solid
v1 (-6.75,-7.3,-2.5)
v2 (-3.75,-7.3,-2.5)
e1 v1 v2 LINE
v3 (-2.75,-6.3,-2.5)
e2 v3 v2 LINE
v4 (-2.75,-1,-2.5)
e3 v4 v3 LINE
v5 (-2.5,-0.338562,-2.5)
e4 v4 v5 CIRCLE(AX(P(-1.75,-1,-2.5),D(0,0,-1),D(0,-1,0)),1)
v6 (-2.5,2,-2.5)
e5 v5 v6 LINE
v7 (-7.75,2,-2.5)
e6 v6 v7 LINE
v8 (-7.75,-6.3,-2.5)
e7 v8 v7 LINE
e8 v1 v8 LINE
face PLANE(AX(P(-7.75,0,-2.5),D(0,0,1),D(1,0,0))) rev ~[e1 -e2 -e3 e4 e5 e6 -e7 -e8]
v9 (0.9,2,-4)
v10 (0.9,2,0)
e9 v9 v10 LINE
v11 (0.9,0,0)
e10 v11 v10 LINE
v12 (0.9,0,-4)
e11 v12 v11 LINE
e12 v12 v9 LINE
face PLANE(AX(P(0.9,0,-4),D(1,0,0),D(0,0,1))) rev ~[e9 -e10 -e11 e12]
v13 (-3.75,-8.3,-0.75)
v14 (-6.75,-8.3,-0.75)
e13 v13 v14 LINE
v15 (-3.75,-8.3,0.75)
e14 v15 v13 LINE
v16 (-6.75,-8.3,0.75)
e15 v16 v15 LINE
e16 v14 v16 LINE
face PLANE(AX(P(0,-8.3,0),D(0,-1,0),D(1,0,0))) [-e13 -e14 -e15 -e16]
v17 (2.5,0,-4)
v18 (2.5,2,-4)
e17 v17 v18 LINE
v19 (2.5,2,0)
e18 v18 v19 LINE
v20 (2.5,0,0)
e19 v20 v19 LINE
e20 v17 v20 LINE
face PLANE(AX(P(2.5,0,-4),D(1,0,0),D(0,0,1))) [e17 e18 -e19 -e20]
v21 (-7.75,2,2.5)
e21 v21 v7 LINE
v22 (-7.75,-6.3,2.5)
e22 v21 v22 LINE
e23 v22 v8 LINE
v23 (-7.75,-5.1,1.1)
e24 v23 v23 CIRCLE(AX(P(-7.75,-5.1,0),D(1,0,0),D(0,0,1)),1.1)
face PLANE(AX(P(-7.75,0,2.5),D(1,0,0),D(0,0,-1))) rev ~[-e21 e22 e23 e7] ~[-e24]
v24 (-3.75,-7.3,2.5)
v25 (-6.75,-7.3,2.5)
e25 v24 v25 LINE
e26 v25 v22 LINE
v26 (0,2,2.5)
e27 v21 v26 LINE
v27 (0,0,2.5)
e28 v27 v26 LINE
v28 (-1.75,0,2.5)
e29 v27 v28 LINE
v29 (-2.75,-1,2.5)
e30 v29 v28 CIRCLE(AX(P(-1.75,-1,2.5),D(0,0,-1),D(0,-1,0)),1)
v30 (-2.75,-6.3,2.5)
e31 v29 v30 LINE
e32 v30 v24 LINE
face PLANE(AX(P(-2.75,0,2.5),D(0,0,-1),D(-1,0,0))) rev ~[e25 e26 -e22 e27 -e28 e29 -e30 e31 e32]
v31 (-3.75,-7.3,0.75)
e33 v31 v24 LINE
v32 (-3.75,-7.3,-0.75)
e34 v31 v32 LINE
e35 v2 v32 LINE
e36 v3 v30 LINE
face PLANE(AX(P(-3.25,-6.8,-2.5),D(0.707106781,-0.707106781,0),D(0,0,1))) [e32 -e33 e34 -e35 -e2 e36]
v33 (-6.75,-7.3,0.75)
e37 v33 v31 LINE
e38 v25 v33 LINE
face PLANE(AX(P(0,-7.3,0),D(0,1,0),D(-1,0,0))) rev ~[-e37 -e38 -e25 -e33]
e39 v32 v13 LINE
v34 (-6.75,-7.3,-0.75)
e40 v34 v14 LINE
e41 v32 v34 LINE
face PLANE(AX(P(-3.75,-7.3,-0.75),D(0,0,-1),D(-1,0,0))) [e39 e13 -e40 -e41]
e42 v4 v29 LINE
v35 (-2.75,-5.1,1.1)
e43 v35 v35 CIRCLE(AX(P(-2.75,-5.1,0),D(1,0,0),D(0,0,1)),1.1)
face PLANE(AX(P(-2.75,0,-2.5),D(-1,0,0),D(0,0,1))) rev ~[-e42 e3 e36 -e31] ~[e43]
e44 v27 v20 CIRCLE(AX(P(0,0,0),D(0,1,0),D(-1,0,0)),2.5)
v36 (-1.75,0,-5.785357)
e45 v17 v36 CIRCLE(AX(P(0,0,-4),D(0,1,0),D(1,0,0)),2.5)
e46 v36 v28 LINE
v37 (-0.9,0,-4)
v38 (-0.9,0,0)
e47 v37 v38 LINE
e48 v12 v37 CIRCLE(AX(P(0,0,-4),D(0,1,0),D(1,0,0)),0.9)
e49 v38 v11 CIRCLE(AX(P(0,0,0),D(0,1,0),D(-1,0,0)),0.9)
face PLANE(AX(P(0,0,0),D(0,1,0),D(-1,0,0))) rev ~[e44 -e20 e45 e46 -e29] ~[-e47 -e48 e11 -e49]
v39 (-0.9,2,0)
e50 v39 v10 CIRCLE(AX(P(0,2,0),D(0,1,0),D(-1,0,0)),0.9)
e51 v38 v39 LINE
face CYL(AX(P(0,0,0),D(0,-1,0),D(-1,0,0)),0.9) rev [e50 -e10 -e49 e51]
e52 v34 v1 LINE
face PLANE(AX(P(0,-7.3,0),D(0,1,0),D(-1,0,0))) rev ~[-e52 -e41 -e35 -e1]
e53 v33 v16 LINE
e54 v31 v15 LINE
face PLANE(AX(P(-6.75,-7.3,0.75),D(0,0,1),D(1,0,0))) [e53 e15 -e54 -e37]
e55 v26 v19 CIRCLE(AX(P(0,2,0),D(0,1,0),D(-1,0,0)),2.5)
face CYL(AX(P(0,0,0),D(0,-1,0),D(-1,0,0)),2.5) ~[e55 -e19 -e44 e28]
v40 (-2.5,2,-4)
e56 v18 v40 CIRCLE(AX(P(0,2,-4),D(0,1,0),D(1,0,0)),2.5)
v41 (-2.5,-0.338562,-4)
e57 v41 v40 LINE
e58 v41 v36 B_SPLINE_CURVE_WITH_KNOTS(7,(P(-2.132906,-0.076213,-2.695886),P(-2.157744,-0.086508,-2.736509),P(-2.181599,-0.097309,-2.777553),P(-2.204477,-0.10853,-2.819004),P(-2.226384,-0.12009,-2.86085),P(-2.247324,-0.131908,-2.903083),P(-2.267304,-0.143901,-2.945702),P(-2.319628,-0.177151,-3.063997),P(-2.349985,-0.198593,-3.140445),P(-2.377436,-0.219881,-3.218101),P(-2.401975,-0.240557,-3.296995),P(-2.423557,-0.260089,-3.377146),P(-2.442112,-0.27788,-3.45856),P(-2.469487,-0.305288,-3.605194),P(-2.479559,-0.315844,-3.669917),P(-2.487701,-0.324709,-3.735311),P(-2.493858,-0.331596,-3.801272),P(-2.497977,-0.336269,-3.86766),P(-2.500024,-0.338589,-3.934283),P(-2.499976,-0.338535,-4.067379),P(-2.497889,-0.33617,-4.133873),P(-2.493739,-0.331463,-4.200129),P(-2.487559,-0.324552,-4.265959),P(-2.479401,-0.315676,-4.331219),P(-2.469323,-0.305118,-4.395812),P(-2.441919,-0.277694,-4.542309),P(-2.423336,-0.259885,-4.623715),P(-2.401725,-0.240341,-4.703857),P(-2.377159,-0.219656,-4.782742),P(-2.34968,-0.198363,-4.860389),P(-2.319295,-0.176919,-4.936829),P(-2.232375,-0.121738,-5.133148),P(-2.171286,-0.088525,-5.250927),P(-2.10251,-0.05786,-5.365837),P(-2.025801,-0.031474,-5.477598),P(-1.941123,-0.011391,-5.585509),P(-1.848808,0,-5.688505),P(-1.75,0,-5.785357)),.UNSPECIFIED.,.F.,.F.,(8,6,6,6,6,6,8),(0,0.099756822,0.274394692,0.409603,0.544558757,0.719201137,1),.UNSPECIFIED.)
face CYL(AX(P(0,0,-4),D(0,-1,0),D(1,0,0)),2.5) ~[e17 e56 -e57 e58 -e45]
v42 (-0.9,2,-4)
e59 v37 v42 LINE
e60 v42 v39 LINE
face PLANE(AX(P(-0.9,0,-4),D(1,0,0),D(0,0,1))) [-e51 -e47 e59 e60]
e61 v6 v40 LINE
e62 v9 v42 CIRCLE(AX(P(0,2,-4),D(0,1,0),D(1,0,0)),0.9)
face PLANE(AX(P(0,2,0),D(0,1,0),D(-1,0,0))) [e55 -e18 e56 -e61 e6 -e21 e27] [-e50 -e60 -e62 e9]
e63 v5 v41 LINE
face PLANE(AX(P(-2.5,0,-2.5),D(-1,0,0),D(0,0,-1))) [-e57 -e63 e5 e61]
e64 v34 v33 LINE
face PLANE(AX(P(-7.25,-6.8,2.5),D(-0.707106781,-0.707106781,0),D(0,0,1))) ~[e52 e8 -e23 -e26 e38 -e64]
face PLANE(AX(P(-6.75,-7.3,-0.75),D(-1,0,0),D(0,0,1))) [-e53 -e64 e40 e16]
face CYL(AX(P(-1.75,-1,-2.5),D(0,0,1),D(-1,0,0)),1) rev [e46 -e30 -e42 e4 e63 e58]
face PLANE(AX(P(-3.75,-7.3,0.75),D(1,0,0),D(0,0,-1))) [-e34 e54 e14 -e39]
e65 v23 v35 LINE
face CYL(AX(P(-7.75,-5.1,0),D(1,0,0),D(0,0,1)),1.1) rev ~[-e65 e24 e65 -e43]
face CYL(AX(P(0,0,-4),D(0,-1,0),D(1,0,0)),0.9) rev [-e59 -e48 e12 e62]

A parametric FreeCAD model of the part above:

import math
import FreeCAD as App
import Part
import Sketcher


def edges_at(feature, points):
    """Names of the edges that pass closest to the given points."""
    edges = feature.Shape.Edges
    near = lambda p: min(range(len(edges)), key=lambda i: edges[i].distToShape(Part.Vertex(*p))[0])
    return sorted({f"Edge{near(p) + 1}" for p in points})


def add_polygon(sketch, points):
    """Adds a closed chain of lines whose ends are joined by coincident constraints."""
    first, n = sketch.GeometryCount, len(points)
    for a, b in zip(points, points[1:] + points[:1]):
        sketch.addGeometry(Part.LineSegment(App.Vector(*a, 0), App.Vector(*b, 0)), False)
    for i in range(n):
        sketch.addConstraint(Sketcher.Constraint("Coincident", first + i, 2, first + (i + 1) % n, 1))

doc = App.newDocument("Part")
body = doc.addObject("PartDesign::Body", "Body")

# Sketch on XZ plane
sketch1 = doc.addObject("Sketcher::SketchObject", "Sketch")
body.addObject(sketch1)
sketch1.AttachmentSupport = (doc.XZ_Plane, [""])
sketch1.MapMode = "FlatFace"
sketch1.addGeometry(Part.LineSegment(App.Vector(2.5, 0, 0), App.Vector(2.5, -4, 0)), False)
sketch1.addGeometry(Part.ArcOfCircle(Part.Circle(App.Vector(0, -4, 0), App.Vector(0, 0, 1), 2.5), math.radians(180), math.radians(360)), False)
sketch1.addGeometry(Part.LineSegment(App.Vector(-2.5, -4, 0), App.Vector(-2.5, -2.5, 0)), False)
sketch1.addGeometry(Part.LineSegment(App.Vector(-2.5, -2.5, 0), App.Vector(-7.75, -2.5, 0)), False)
sketch1.addGeometry(Part.LineSegment(App.Vector(-7.75, -2.5, 0), App.Vector(-7.75, 2.5, 0)), False)
sketch1.addGeometry(Part.LineSegment(App.Vector(-7.75, 2.5, 0), App.Vector(0, 2.5, 0)), False)
sketch1.addGeometry(Part.ArcOfCircle(Part.Circle(App.Vector(0, 0, 0), App.Vector(0, 0, 1), 2.5), math.radians(0), math.radians(90)), False)
sketch1.addGeometry(Part.ArcOfCircle(Part.Circle(App.Vector(0, 0, 0), App.Vector(0, 0, 1), 0.9), math.radians(0), math.radians(180)), False)
sketch1.addGeometry(Part.LineSegment(App.Vector(-0.9, 0, 0), App.Vector(-0.9, -4, 0)), False)
sketch1.addGeometry(Part.ArcOfCircle(Part.Circle(App.Vector(0, -4, 0), App.Vector(0, 0, 1), 0.9), math.radians(180), math.radians(360)), False)
sketch1.addGeometry(Part.LineSegment(App.Vector(0.9, -4, 0), App.Vector(0.9, 0, 0)), False)
sketch1.addConstraint(Sketcher.Constraint("Tangent", 0, 2, 1, 2))
sketch1.addConstraint(Sketcher.Constraint("Tangent", 1, 1, 2, 1))
sketch1.addConstraint(Sketcher.Constraint("Coincident", 2, 2, 3, 1))
sketch1.addConstraint(Sketcher.Constraint("Coincident", 3, 2, 4, 1))
sketch1.addConstraint(Sketcher.Constraint("Coincident", 4, 2, 5, 1))
sketch1.addConstraint(Sketcher.Constraint("Tangent", 5, 2, 6, 2))
sketch1.addConstraint(Sketcher.Constraint("Tangent", 6, 1, 0, 1))
sketch1.addConstraint(Sketcher.Constraint("Tangent", 7, 2, 8, 1))
sketch1.addConstraint(Sketcher.Constraint("Tangent", 8, 2, 9, 1))
sketch1.addConstraint(Sketcher.Constraint("Tangent", 9, 2, 10, 1))
sketch1.addConstraint(Sketcher.Constraint("Tangent", 10, 2, 7, 1))
sketch1.addConstraint(Sketcher.Constraint("Vertical", 0))
sketch1.addConstraint(Sketcher.Constraint("Vertical", 2))
sketch1.addConstraint(Sketcher.Constraint("Horizontal", 3))
sketch1.addConstraint(Sketcher.Constraint("Vertical", 4))
sketch1.addConstraint(Sketcher.Constraint("Horizontal", 5))
sketch1.addConstraint(Sketcher.Constraint("Vertical", 8))
sketch1.addConstraint(Sketcher.Constraint("Vertical", 10))
sketch1.addConstraint(Sketcher.Constraint("Coincident", 6, 3, -1, 1))
sketch1.addConstraint(Sketcher.Constraint("Coincident", 7, 3, -1, 1))
sketch1.addConstraint(Sketcher.Constraint("Coincident", 9, 3, 1, 3))
sketch1.addConstraint(Sketcher.Constraint("Radius", 1, 2.5))
sketch1.addConstraint(Sketcher.Constraint("Radius", 7, 0.9))
sketch1.addConstraint(Sketcher.Constraint("DistanceY", 0, 2, 0, 1, 4.0))
sketch1.addConstraint(Sketcher.Constraint("DistanceY", 4, 1, 4, 2, 5.0))
sketch1.addConstraint(Sketcher.Constraint("DistanceX", 3, 2, 3, 1, 5.25))
pad1 = doc.addObject("PartDesign::Pad", "Pad")
body.addObject(pad1)
pad1.Profile = sketch1
pad1.Length = 2
pad1.Reversed = True

# Sketch on XZ plane
sketch2 = doc.addObject("Sketcher::SketchObject", "Sketch001")
body.addObject(sketch2)
sketch2.AttachmentSupport = (doc.XZ_Plane, [""])
sketch2.MapMode = "FlatFace"
add_polygon(sketch2, [(-2.75, 2.5), (-2.75, -2.5), (-7.75, -2.5), (-7.75, 2.5)])  # lines 0-3
sketch2.addConstraint(Sketcher.Constraint("Vertical", 0))
sketch2.addConstraint(Sketcher.Constraint("Horizontal", 1))
sketch2.addConstraint(Sketcher.Constraint("Vertical", 2))
sketch2.addConstraint(Sketcher.Constraint("Horizontal", 3))
sketch2.addConstraint(Sketcher.Constraint("Equal", 3, 0))
sketch2.addConstraint(Sketcher.Constraint("DistanceX", 1, 2, 1, 1, 5.0))
sketch2.addConstraint(Sketcher.Constraint("DistanceY", 0, 2, -1, 1, 2.5))
sketch2.addConstraint(Sketcher.Constraint("DistanceX", 0, 2, -1, 1, 2.75))
pad2 = doc.addObject("PartDesign::Pad", "Pad001")
body.addObject(pad2)
pad2.Profile = sketch2
pad2.Length = 7.3

# Sketch on YZ plane
sketch3 = doc.addObject("Sketcher::SketchObject", "Sketch002")
body.addObject(sketch3)
sketch3.AttachmentSupport = (doc.YZ_Plane, [""])
sketch3.MapMode = "FlatFace"
sketch3.AttachmentOffset = App.Placement(App.Vector(0, 0, -7.75), App.Rotation())
sketch3.addGeometry(Part.Circle(App.Vector(-5.1, 0, 0), App.Vector(0, 0, 1), 1.1), False)
sketch3.addConstraint(Sketcher.Constraint("PointOnObject", 0, 3, -1))
sketch3.addConstraint(Sketcher.Constraint("Diameter", 0, 2.2))
sketch3.addConstraint(Sketcher.Constraint("DistanceX", 0, 3, -1, 1, 5.1))
doc.recompute()
hole = doc.addObject("PartDesign::Hole", "Hole")
body.addObject(hole)
hole.Profile = sketch3
hole.ThreadType = "None"
hole.Diameter = 2.2
hole.DepthType = "ThroughAll"
hole.Reversed = True
doc.recompute()

fillet = doc.addObject("PartDesign::Fillet", "Fillet")
body.addObject(fillet)
fillet.Base = (hole, edges_at(hole, [(-2.75, 0, 0)]))
fillet.Radius = 1
doc.recompute()

chamfer = doc.addObject("PartDesign::Chamfer", "Chamfer")
body.addObject(chamfer)
chamfer.Base = (fillet, edges_at(fillet, [(-7.75, -7.3, 0), (-2.75, -7.3, 0)]))
chamfer.Size = 1

# Sketch on XZ plane
sketch4 = doc.addObject("Sketcher::SketchObject", "Sketch003")
body.addObject(sketch4)
sketch4.AttachmentSupport = (doc.XZ_Plane, [""])
sketch4.MapMode = "FlatFace"
sketch4.AttachmentOffset = App.Placement(App.Vector(0, 0, 7.3), App.Rotation())
add_polygon(sketch4, [(-3.75, -0.75), (-3.75, 0.75), (-6.75, 0.75), (-6.75, -0.75)])  # lines 0-3
sketch4.addConstraint(Sketcher.Constraint("Vertical", 0))
sketch4.addConstraint(Sketcher.Constraint("Horizontal", 1))
sketch4.addConstraint(Sketcher.Constraint("Vertical", 2))
sketch4.addConstraint(Sketcher.Constraint("Horizontal", 3))
sketch4.addConstraint(Sketcher.Constraint("DistanceY", 0, 1, 0, 2, 1.5))
sketch4.addConstraint(Sketcher.Constraint("DistanceX", 1, 2, 1, 1, 3.0))
sketch4.addConstraint(Sketcher.Constraint("DistanceX", 0, 2, -1, 1, 3.75))
sketch4.addConstraint(Sketcher.Constraint("DistanceY", -1, 1, 0, 2, 0.75))
pad3 = doc.addObject("PartDesign::Pad", "Pad002")
body.addObject(pad3)
pad3.Profile = sketch4
pad3.Length = 1

doc.recompute()
